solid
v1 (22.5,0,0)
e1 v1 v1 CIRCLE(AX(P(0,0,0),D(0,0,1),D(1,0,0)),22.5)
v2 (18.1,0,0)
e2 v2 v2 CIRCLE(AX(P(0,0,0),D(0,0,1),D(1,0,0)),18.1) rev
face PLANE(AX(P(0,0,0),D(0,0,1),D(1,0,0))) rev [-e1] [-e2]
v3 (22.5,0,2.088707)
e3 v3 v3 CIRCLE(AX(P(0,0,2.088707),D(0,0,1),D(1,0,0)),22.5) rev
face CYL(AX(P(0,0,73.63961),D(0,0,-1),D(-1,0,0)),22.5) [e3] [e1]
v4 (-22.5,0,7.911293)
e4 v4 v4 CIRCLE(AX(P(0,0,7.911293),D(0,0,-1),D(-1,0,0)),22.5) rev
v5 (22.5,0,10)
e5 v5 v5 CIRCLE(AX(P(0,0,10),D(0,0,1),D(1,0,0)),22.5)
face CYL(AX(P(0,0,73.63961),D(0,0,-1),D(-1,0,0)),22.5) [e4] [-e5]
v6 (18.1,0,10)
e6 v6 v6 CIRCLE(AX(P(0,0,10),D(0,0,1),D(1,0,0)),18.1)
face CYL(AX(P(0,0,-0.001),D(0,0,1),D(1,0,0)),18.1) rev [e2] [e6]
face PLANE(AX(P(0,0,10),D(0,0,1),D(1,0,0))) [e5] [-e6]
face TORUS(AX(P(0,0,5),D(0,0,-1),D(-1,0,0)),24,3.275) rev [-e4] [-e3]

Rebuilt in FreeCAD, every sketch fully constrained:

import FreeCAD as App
import Part
import Sketcher

V = App.Vector
Q = App.Units.Quantity

doc = App.newDocument("Part")
body = doc.addObject("PartDesign::Body", "Body")

# Sketch on XY plane
sketch1 = body.newObject("Sketcher::SketchObject", "Sketch")
sketch1.AttachmentSupport = (doc.getObject("XY_Plane"), [""])
sketch1.MapMode = "FlatFace"
sketch1.addGeometry(Part.Circle(V(0, 0, 0), V(0, 0, 1), 22), False)
sketch1.addConstraint(Sketcher.Constraint("Coincident", 0, 3, -1, 1))
sketch1.addConstraint(Sketcher.Constraint("Diameter", 0, Q("45 mm")))
pad1 = body.newObject("PartDesign::Pad", "Pad")
pad1.Profile = sketch1
pad1.Length = 10

# Sketch on XY plane
sketch2 = body.newObject("Sketcher::SketchObject", "Sketch001")
sketch2.AttachmentSupport = (doc.getObject("XY_Plane"), [""])
sketch2.MapMode = "FlatFace"
sketch2.AttachmentOffset = App.Placement(V(0, 0, 10), App.Rotation())
sketch2.addGeometry(Part.Circle(V(0, 0, 0), V(0, 0, 1), 18), False)
sketch2.addConstraint(Sketcher.Constraint("Coincident", 0, 3, -1, 1))
sketch2.addConstraint(Sketcher.Constraint("Diameter", 0, Q("36.2 mm")))
pocket1 = body.newObject("PartDesign::Pocket", "Pocket")
pocket1.Profile = sketch2
pocket1.Type = "UpToFirst"

# Sketch on XZ plane
sketch3 = body.newObject("Sketcher::SketchObject", "Sketch002")
sketch3.AttachmentSupport = (doc.getObject("XZ_Plane"), [""])
sketch3.MapMode = "FlatFace"
sketch3.addGeometry(Part.Circle(V(-24, 5, 0), V(0, 0, 1), 3.3), False)
sketch3.addConstraint(Sketcher.Constraint("Diameter", 0, Q("6.55 mm")))
sketch3.addConstraint(Sketcher.Constraint("DistanceX", 0, 3, -1, 1, Q("24 mm")))
sketch3.addConstraint(Sketcher.Constraint("DistanceY", -1, 1, 0, 3, Q("5 mm")))
groove = body.newObject("PartDesign::Groove", "Groove")
groove.Profile = sketch3
groove.ReferenceAxis = (sketch3, ["V_Axis"])
groove.Angle = 360

doc.recompute()
